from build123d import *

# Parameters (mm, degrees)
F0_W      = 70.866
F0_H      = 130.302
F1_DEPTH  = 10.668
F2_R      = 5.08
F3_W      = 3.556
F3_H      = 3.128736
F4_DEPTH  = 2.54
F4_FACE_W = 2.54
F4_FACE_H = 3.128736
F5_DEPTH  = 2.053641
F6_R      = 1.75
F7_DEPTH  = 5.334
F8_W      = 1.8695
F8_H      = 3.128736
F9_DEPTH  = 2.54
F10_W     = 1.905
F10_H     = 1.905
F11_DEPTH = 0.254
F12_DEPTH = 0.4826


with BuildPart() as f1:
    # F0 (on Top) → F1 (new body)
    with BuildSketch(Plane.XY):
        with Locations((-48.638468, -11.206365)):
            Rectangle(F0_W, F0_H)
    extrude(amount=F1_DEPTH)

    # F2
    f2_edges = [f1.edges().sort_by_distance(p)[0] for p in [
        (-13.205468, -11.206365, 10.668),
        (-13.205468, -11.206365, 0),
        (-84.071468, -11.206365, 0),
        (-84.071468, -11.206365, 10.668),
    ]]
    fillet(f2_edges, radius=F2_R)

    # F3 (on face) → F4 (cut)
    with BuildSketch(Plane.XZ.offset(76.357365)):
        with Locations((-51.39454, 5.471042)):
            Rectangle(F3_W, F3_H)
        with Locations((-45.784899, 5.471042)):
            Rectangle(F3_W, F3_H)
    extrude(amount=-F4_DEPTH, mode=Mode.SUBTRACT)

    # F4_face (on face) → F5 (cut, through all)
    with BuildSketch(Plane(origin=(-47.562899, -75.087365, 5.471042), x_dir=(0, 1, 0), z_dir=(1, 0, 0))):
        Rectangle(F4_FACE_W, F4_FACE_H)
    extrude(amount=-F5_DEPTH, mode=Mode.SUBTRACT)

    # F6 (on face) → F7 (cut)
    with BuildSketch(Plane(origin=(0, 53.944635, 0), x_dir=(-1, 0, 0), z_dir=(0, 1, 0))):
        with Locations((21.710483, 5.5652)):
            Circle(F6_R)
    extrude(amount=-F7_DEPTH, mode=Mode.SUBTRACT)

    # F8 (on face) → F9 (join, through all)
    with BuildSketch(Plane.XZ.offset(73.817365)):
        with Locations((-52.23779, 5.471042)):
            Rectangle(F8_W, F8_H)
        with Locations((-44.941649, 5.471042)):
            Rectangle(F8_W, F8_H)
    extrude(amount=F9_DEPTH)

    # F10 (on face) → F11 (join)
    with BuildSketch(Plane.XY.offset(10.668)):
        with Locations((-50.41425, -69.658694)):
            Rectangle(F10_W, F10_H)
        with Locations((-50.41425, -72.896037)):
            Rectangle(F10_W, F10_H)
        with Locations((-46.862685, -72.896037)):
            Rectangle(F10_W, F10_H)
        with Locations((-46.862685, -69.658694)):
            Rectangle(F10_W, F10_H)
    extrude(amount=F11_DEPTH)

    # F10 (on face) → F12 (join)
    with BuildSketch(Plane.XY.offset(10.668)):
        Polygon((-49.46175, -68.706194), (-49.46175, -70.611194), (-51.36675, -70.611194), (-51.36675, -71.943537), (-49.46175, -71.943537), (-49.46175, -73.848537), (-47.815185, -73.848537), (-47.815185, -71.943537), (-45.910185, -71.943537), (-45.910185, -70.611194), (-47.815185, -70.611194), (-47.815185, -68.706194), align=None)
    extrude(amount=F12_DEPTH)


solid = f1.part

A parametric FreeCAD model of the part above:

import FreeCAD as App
import Part
import Sketcher
Q = App.Units.Quantity


def edges_at(feature, points):
    """Names of the edges that pass closest to the given points."""
    edges = feature.Shape.Edges
    near = lambda p: min(range(len(edges)), key=lambda i: edges[i].distToShape(Part.Vertex(*p))[0])
    return sorted({f"Edge{near(p) + 1}" for p in points})


def add_polygon(sketch, points):
    """Adds a closed chain of lines whose ends are joined by coincident constraints."""
    first, n = sketch.GeometryCount, len(points)
    for a, b in zip(points, points[1:] + points[:1]):
        sketch.addGeometry(Part.LineSegment(App.Vector(*a, 0), App.Vector(*b, 0)), False)
    for i in range(n):
        sketch.addConstraint(Sketcher.Constraint("Coincident", first + i, 2, first + (i + 1) % n, 1))

doc = App.newDocument("Part")
body = doc.addObject("PartDesign::Body", "Body")

sketch1 = doc.addObject("Sketcher::SketchObject", "Sketch")
body.addObject(sketch1)
sketch1.AttachmentSupport = (doc.XY_Plane, [""])
sketch1.MapMode = "FlatFace"
add_polygon(sketch1, [(-84.071468, 53.944635), (-84.071468, -76.357365), (-13.205468, -76.357365), (-13.205468, 53.944635)])
sketch1.addConstraint([
    Sketcher.Constraint("Vertical", 0),
    Sketcher.Constraint("Horizontal", 1),
    Sketcher.Constraint("Vertical", 2),
    Sketcher.Constraint("Horizontal", 3),
    Sketcher.Constraint("DistanceX", 1, 1, 1, 2, Q("2.79 in")),
    Sketcher.Constraint("DistanceY", 0, 2, 0, 1, Q("5.13 in")),
    Sketcher.Constraint("DistanceX", 0, 2, -1, 1, Q("84.071468 mm")),
    Sketcher.Constraint("DistanceY", 0, 2, -1, 1, Q("76.357365 mm")),
])
pad1 = doc.addObject("PartDesign::Pad", "Pad")
body.addObject(pad1)
pad1.Profile = sketch1
pad1.Length = Q("0.42 in")
doc.recompute()

fillet = doc.addObject("PartDesign::Fillet", "Fillet")
body.addObject(fillet)
fillet.Base = (pad1, edges_at(pad1, [
    (-13.205, -11.206, 10.668),
    (-13.205, -11.206, 0),
    (-84.071, -11.206, 0),
    (-84.071, -11.206, 10.668),
]))
fillet.Radius = Q("0.2 in")

sketch2 = doc.addObject("Sketcher::SketchObject", "Sketch001")
body.addObject(sketch2)
sketch2.AttachmentSupport = (doc.XZ_Plane, [""])
sketch2.MapMode = "FlatFace"
sketch2.AttachmentOffset = App.Placement(App.Vector(0, 0, 76.357365), App.Rotation())
add_polygon(sketch2, [(-53.17254, 7.03541), (-53.17254, 3.906674), (-49.61654, 3.906674), (-49.61654, 7.03541)])
add_polygon(sketch2, [(-47.562899, 7.03541), (-47.562899, 3.906674), (-44.006899, 3.906674), (-44.006899, 7.03541)])
sketch2.addConstraint([
    Sketcher.Constraint("Vertical", 0),
    Sketcher.Constraint("Horizontal", 1),
    Sketcher.Constraint("Vertical", 2),
    Sketcher.Constraint("Horizontal", 3),
    Sketcher.Constraint("Vertical", 4),
    Sketcher.Constraint("Horizontal", 5),
    Sketcher.Constraint("Vertical", 6),
    Sketcher.Constraint("Horizontal", 7),
    Sketcher.Constraint("Horizontal", 1, 2, 4, 2),
    Sketcher.Constraint("Horizontal", 3, 2, 6, 2),
    Sketcher.Constraint("Equal", 3, 5),
    Sketcher.Constraint("DistanceX", 1, 1, 1, 2, Q("0.14 in")),
    Sketcher.Constraint("DistanceX", 4, 2, -1, 1, Q("47.562899 mm")),
    Sketcher.Constraint("DistanceY", 0, 2, 0, 1, Q("3.128736 mm")),
    Sketcher.Constraint("DistanceX", 0, 2, -1, 1, Q("53.17254 mm")),
    Sketcher.Constraint("DistanceY", -1, 1, 2, 2, Q("7.03541 mm")),
])
pocket1 = doc.addObject("PartDesign::Pocket", "Pocket")
body.addObject(pocket1)
pocket1.Profile = sketch2
pocket1.Length = Q("0.1 in")

sketch3 = doc.addObject("Sketcher::SketchObject", "Sketch002")
body.addObject(sketch3)
sketch3.AttachmentSupport = (doc.YZ_Plane, [""])
sketch3.MapMode = "FlatFace"
sketch3.AttachmentOffset = App.Placement(App.Vector(0, 0, -47.562899), App.Rotation())
add_polygon(sketch3, [(-76.357365, 7.03541), (-76.357365, 3.906674), (-73.817365, 3.906674), (-73.817365, 7.03541)])
sketch3.addConstraint([
    Sketcher.Constraint("Vertical", 0),
    Sketcher.Constraint("Horizontal", 1),
    Sketcher.Constraint("Vertical", 2),
    Sketcher.Constraint("Horizontal", 3),
    Sketcher.Constraint("DistanceX", 1, 1, 1, 2, Q("0.1 in")),
    Sketcher.Constraint("DistanceY", 0, 2, 0, 1, Q("3.128736 mm")),
    Sketcher.Constraint("DistanceY", -1, 1, 2, 2, Q("7.03541 mm")),
    Sketcher.Constraint("DistanceX", 0, 2, -1, 1, Q("76.357365 mm")),
])
pocket2 = doc.addObject("PartDesign::Pocket", "Pocket001")
body.addObject(pocket2)
pocket2.Profile = sketch3
pocket2.Length = 2.053641

sketch4 = doc.addObject("Sketcher::SketchObject", "Sketch003")
body.addObject(sketch4)
sketch4.AttachmentSupport = (doc.XZ_Plane, [""])
sketch4.MapMode = "FlatFace"
sketch4.AttachmentOffset = App.Placement(App.Vector(0, 0, -53.944635), App.Rotation())
sketch4.addGeometry(Part.Circle(App.Vector(-21.710483, 5.5652, 0), App.Vector(0, 0, 1), 1.75), False)
sketch4.addConstraint([
    Sketcher.Constraint("Diameter", 0, Q("3.5 mm")),
    Sketcher.Constraint("DistanceY", -1, 1, 0, 3, Q("5.5652 mm")),
    Sketcher.Constraint("DistanceX", 0, 3, -1, 1, Q("21.710483 mm")),
])
pocket3 = doc.addObject("PartDesign::Pocket", "Pocket002")
body.addObject(pocket3)
pocket3.Profile = sketch4
pocket3.Length = Q("0.21 in")
pocket3.Reversed = True

sketch5 = doc.addObject("Sketcher::SketchObject", "Sketch004")
body.addObject(sketch5)
sketch5.AttachmentSupport = (doc.XZ_Plane, [""])
sketch5.MapMode = "FlatFace"
sketch5.AttachmentOffset = App.Placement(App.Vector(0, 0, 73.817365), App.Rotation())
add_polygon(sketch5, [(-53.17254, 7.03541), (-53.17254, 3.906674), (-51.30304, 3.906674), (-51.30304, 7.03541)])
add_polygon(sketch5, [(-45.876399, 7.03541), (-45.876399, 3.906674), (-44.006899, 3.906674), (-44.006899, 7.03541)])
sketch5.addConstraint([
    Sketcher.Constraint("Vertical", 0),
    Sketcher.Constraint("Horizontal", 1),
    Sketcher.Constraint("Vertical", 2),
    Sketcher.Constraint("Horizontal", 3),
    Sketcher.Constraint("Vertical", 4),
    Sketcher.Constraint("Horizontal", 5),
    Sketcher.Constraint("Vertical", 6),
    Sketcher.Constraint("Horizontal", 7),
    Sketcher.Constraint("Horizontal", 1, 2, 4, 2),
    Sketcher.Constraint("Horizontal", 3, 2, 6, 2),
    Sketcher.Constraint("Equal", 3, 5),
    Sketcher.Constraint("DistanceX", 1, 1, 1, 2, Q("1.8695 mm")),
    Sketcher.Constraint("DistanceX", 4, 2, -1, 1, Q("45.876399 mm")),
    Sketcher.Constraint("DistanceY", 0, 2, 0, 1, Q("3.128736 mm")),
    Sketcher.Constraint("DistanceX", 0, 2, -1, 1, Q("53.17254 mm")),
    Sketcher.Constraint("DistanceY", -1, 1, 2, 2, Q("7.03541 mm")),
])
pad2 = doc.addObject("PartDesign::Pad", "Pad001")
body.addObject(pad2)
pad2.Profile = sketch5
pad2.Length = Q("0.1 in")

sketch6 = doc.addObject("Sketcher::SketchObject", "Sketch005")
body.addObject(sketch6)
sketch6.AttachmentSupport = (doc.XY_Plane, [""])
sketch6.MapMode = "FlatFace"
sketch6.AttachmentOffset = App.Placement(App.Vector(0, 0, 0.42 * 25.4), App.Rotation())
add_polygon(sketch6, [(-51.36675, -68.706194), (-51.36675, -70.611194), (-49.46175, -70.611194), (-49.46175, -68.706194)])
add_polygon(sketch6, [(-51.36675, -71.943537), (-51.36675, -73.848537), (-49.46175, -73.848537), (-49.46175, -71.943537)])
add_polygon(sketch6, [(-47.815185, -71.943537), (-47.815185, -73.848537), (-45.910185, -73.848537), (-45.910185, -71.943537)])
add_polygon(sketch6, [(-47.815185, -68.706194), (-47.815185, -70.611194), (-45.910185, -70.611194), (-45.910185, -68.706194)])
sketch6.addConstraint([
    Sketcher.Constraint("Vertical", 0),
    Sketcher.Constraint("Horizontal", 1),
    Sketcher.Constraint("Vertical", 2),
    Sketcher.Constraint("Horizontal", 3),
    Sketcher.Constraint("Vertical", 4),
    Sketcher.Constraint("Horizontal", 5),
    Sketcher.Constraint("Vertical", 6),
    Sketcher.Constraint("Horizontal", 7),
    Sketcher.Constraint("Vertical", 8),
    Sketcher.Constraint("Horizontal", 9),
    Sketcher.Constraint("Vertical", 10),
    Sketcher.Constraint("Horizontal", 11),
    Sketcher.Constraint("Vertical", 12),
    Sketcher.Constraint("Horizontal", 13),
    Sketcher.Constraint("Vertical", 14),
    Sketcher.Constraint("Horizontal", 15),
    Sketcher.Constraint("Horizontal", 5, 2, 8, 2),
    Sketcher.Constraint("Horizontal", 7, 2, 10, 2),
    Sketcher.Constraint("Horizontal", 1, 2, 12, 2),
    Sketcher.Constraint("Horizontal", 3, 2, 14, 2),
    Sketcher.Constraint("Vertical", 3, 2, 4, 2),
    Sketcher.Constraint("Vertical", 2, 2, 5, 2),
    Sketcher.Constraint("Vertical", 11, 2, 12, 2),
    Sketcher.Constraint("Vertical", 10, 2, 13, 2),
    Sketcher.Constraint("Equal", 7, 9),
    Sketcher.Constraint("Equal", 15, 0),
    Sketcher.Constraint("Equal", 2, 4),
    Sketcher.Constraint("DistanceX", 1, 1, 1, 2, Q("0.075 in")),
    Sketcher.Constraint("DistanceX", 0, 2, -1, 1, Q("51.36675 mm")),
    Sketcher.Constraint("DistanceY", 0, 2, -1, 1, Q("70.611194 mm")),
    Sketcher.Constraint("DistanceY", 4, 2, -1, 1, Q("73.848537 mm")),
    Sketcher.Constraint("DistanceX", 8, 2, -1, 1, Q("47.815185 mm")),
])
pad3 = doc.addObject("PartDesign::Pad", "Pad002")
body.addObject(pad3)
pad3.Profile = sketch6
pad3.Length = Q("0.01 in")

sketch7 = doc.addObject("Sketcher::SketchObject", "Sketch006")
body.addObject(sketch7)
sketch7.AttachmentSupport = (doc.XY_Plane, [""])
sketch7.MapMode = "FlatFace"
sketch7.AttachmentOffset = App.Placement(App.Vector(0, 0, 0.42 * 25.4), App.Rotation())
add_polygon(sketch7, [(-49.46175, -68.706194), (-49.46175, -70.611194), (-51.36675, -70.611194), (-51.36675, -71.943537), (-49.46175, -71.943537), (-49.46175, -73.848537), (-47.815185, -73.848537), (-47.815185, -71.943537), (-45.910185, -71.943537), (-45.910185, -70.611194), (-47.815185, -70.611194), (-47.815185, -68.706194)])
sketch7.addConstraint([
    Sketcher.Constraint("Vertical", 0),
    Sketcher.Constraint("Horizontal", 1),
    Sketcher.Constraint("Vertical", 2),
    Sketcher.Constraint("Horizontal", 3),
    Sketcher.Constraint("Vertical", 4),
    Sketcher.Constraint("Horizontal", 5),
    Sketcher.Constraint("Vertical", 6),
    Sketcher.Constraint("Horizontal", 7),
    Sketcher.Constraint("Vertical", 8),
    Sketcher.Constraint("Horizontal", 9),
    Sketcher.Constraint("Vertical", 10),
    Sketcher.Constraint("Horizontal", 11),
    Sketcher.Constraint("Horizontal", 3, 2, 6, 2),
    Sketcher.Constraint("Horizontal", 1, 2, 8, 2),
    Sketcher.Constraint("Vertical", 0, 2, 3, 2),
    Sketcher.Constraint("Vertical", 6, 2, 9, 2),
    Sketcher.Constraint("Equal", 3, 7),
    Sketcher.Constraint("Equal", 9, 0),
    Sketcher.Constraint("Equal", 0, 4),
    Sketcher.Constraint("DistanceX", 1, 2, 1, 1, Q("0.075 in")),
    Sketcher.Constraint("DistanceX", 5, 1, 5, 2, Q("1.646565 mm")),
    Sketcher.Constraint("DistanceY", 2, 2, 2, 1, Q("1.332343 mm")),
    Sketcher.Constraint("DistanceX", 0, 2, -1, 1, Q("49.46175 mm")),
    Sketcher.Constraint("DistanceY", 0, 2, -1, 1, Q("70.611194 mm")),
])
pad4 = doc.addObject("PartDesign::Pad", "Pad003")
body.addObject(pad4)
pad4.Profile = sketch7
pad4.Length = Q("0.019 in")

doc.recompute()
